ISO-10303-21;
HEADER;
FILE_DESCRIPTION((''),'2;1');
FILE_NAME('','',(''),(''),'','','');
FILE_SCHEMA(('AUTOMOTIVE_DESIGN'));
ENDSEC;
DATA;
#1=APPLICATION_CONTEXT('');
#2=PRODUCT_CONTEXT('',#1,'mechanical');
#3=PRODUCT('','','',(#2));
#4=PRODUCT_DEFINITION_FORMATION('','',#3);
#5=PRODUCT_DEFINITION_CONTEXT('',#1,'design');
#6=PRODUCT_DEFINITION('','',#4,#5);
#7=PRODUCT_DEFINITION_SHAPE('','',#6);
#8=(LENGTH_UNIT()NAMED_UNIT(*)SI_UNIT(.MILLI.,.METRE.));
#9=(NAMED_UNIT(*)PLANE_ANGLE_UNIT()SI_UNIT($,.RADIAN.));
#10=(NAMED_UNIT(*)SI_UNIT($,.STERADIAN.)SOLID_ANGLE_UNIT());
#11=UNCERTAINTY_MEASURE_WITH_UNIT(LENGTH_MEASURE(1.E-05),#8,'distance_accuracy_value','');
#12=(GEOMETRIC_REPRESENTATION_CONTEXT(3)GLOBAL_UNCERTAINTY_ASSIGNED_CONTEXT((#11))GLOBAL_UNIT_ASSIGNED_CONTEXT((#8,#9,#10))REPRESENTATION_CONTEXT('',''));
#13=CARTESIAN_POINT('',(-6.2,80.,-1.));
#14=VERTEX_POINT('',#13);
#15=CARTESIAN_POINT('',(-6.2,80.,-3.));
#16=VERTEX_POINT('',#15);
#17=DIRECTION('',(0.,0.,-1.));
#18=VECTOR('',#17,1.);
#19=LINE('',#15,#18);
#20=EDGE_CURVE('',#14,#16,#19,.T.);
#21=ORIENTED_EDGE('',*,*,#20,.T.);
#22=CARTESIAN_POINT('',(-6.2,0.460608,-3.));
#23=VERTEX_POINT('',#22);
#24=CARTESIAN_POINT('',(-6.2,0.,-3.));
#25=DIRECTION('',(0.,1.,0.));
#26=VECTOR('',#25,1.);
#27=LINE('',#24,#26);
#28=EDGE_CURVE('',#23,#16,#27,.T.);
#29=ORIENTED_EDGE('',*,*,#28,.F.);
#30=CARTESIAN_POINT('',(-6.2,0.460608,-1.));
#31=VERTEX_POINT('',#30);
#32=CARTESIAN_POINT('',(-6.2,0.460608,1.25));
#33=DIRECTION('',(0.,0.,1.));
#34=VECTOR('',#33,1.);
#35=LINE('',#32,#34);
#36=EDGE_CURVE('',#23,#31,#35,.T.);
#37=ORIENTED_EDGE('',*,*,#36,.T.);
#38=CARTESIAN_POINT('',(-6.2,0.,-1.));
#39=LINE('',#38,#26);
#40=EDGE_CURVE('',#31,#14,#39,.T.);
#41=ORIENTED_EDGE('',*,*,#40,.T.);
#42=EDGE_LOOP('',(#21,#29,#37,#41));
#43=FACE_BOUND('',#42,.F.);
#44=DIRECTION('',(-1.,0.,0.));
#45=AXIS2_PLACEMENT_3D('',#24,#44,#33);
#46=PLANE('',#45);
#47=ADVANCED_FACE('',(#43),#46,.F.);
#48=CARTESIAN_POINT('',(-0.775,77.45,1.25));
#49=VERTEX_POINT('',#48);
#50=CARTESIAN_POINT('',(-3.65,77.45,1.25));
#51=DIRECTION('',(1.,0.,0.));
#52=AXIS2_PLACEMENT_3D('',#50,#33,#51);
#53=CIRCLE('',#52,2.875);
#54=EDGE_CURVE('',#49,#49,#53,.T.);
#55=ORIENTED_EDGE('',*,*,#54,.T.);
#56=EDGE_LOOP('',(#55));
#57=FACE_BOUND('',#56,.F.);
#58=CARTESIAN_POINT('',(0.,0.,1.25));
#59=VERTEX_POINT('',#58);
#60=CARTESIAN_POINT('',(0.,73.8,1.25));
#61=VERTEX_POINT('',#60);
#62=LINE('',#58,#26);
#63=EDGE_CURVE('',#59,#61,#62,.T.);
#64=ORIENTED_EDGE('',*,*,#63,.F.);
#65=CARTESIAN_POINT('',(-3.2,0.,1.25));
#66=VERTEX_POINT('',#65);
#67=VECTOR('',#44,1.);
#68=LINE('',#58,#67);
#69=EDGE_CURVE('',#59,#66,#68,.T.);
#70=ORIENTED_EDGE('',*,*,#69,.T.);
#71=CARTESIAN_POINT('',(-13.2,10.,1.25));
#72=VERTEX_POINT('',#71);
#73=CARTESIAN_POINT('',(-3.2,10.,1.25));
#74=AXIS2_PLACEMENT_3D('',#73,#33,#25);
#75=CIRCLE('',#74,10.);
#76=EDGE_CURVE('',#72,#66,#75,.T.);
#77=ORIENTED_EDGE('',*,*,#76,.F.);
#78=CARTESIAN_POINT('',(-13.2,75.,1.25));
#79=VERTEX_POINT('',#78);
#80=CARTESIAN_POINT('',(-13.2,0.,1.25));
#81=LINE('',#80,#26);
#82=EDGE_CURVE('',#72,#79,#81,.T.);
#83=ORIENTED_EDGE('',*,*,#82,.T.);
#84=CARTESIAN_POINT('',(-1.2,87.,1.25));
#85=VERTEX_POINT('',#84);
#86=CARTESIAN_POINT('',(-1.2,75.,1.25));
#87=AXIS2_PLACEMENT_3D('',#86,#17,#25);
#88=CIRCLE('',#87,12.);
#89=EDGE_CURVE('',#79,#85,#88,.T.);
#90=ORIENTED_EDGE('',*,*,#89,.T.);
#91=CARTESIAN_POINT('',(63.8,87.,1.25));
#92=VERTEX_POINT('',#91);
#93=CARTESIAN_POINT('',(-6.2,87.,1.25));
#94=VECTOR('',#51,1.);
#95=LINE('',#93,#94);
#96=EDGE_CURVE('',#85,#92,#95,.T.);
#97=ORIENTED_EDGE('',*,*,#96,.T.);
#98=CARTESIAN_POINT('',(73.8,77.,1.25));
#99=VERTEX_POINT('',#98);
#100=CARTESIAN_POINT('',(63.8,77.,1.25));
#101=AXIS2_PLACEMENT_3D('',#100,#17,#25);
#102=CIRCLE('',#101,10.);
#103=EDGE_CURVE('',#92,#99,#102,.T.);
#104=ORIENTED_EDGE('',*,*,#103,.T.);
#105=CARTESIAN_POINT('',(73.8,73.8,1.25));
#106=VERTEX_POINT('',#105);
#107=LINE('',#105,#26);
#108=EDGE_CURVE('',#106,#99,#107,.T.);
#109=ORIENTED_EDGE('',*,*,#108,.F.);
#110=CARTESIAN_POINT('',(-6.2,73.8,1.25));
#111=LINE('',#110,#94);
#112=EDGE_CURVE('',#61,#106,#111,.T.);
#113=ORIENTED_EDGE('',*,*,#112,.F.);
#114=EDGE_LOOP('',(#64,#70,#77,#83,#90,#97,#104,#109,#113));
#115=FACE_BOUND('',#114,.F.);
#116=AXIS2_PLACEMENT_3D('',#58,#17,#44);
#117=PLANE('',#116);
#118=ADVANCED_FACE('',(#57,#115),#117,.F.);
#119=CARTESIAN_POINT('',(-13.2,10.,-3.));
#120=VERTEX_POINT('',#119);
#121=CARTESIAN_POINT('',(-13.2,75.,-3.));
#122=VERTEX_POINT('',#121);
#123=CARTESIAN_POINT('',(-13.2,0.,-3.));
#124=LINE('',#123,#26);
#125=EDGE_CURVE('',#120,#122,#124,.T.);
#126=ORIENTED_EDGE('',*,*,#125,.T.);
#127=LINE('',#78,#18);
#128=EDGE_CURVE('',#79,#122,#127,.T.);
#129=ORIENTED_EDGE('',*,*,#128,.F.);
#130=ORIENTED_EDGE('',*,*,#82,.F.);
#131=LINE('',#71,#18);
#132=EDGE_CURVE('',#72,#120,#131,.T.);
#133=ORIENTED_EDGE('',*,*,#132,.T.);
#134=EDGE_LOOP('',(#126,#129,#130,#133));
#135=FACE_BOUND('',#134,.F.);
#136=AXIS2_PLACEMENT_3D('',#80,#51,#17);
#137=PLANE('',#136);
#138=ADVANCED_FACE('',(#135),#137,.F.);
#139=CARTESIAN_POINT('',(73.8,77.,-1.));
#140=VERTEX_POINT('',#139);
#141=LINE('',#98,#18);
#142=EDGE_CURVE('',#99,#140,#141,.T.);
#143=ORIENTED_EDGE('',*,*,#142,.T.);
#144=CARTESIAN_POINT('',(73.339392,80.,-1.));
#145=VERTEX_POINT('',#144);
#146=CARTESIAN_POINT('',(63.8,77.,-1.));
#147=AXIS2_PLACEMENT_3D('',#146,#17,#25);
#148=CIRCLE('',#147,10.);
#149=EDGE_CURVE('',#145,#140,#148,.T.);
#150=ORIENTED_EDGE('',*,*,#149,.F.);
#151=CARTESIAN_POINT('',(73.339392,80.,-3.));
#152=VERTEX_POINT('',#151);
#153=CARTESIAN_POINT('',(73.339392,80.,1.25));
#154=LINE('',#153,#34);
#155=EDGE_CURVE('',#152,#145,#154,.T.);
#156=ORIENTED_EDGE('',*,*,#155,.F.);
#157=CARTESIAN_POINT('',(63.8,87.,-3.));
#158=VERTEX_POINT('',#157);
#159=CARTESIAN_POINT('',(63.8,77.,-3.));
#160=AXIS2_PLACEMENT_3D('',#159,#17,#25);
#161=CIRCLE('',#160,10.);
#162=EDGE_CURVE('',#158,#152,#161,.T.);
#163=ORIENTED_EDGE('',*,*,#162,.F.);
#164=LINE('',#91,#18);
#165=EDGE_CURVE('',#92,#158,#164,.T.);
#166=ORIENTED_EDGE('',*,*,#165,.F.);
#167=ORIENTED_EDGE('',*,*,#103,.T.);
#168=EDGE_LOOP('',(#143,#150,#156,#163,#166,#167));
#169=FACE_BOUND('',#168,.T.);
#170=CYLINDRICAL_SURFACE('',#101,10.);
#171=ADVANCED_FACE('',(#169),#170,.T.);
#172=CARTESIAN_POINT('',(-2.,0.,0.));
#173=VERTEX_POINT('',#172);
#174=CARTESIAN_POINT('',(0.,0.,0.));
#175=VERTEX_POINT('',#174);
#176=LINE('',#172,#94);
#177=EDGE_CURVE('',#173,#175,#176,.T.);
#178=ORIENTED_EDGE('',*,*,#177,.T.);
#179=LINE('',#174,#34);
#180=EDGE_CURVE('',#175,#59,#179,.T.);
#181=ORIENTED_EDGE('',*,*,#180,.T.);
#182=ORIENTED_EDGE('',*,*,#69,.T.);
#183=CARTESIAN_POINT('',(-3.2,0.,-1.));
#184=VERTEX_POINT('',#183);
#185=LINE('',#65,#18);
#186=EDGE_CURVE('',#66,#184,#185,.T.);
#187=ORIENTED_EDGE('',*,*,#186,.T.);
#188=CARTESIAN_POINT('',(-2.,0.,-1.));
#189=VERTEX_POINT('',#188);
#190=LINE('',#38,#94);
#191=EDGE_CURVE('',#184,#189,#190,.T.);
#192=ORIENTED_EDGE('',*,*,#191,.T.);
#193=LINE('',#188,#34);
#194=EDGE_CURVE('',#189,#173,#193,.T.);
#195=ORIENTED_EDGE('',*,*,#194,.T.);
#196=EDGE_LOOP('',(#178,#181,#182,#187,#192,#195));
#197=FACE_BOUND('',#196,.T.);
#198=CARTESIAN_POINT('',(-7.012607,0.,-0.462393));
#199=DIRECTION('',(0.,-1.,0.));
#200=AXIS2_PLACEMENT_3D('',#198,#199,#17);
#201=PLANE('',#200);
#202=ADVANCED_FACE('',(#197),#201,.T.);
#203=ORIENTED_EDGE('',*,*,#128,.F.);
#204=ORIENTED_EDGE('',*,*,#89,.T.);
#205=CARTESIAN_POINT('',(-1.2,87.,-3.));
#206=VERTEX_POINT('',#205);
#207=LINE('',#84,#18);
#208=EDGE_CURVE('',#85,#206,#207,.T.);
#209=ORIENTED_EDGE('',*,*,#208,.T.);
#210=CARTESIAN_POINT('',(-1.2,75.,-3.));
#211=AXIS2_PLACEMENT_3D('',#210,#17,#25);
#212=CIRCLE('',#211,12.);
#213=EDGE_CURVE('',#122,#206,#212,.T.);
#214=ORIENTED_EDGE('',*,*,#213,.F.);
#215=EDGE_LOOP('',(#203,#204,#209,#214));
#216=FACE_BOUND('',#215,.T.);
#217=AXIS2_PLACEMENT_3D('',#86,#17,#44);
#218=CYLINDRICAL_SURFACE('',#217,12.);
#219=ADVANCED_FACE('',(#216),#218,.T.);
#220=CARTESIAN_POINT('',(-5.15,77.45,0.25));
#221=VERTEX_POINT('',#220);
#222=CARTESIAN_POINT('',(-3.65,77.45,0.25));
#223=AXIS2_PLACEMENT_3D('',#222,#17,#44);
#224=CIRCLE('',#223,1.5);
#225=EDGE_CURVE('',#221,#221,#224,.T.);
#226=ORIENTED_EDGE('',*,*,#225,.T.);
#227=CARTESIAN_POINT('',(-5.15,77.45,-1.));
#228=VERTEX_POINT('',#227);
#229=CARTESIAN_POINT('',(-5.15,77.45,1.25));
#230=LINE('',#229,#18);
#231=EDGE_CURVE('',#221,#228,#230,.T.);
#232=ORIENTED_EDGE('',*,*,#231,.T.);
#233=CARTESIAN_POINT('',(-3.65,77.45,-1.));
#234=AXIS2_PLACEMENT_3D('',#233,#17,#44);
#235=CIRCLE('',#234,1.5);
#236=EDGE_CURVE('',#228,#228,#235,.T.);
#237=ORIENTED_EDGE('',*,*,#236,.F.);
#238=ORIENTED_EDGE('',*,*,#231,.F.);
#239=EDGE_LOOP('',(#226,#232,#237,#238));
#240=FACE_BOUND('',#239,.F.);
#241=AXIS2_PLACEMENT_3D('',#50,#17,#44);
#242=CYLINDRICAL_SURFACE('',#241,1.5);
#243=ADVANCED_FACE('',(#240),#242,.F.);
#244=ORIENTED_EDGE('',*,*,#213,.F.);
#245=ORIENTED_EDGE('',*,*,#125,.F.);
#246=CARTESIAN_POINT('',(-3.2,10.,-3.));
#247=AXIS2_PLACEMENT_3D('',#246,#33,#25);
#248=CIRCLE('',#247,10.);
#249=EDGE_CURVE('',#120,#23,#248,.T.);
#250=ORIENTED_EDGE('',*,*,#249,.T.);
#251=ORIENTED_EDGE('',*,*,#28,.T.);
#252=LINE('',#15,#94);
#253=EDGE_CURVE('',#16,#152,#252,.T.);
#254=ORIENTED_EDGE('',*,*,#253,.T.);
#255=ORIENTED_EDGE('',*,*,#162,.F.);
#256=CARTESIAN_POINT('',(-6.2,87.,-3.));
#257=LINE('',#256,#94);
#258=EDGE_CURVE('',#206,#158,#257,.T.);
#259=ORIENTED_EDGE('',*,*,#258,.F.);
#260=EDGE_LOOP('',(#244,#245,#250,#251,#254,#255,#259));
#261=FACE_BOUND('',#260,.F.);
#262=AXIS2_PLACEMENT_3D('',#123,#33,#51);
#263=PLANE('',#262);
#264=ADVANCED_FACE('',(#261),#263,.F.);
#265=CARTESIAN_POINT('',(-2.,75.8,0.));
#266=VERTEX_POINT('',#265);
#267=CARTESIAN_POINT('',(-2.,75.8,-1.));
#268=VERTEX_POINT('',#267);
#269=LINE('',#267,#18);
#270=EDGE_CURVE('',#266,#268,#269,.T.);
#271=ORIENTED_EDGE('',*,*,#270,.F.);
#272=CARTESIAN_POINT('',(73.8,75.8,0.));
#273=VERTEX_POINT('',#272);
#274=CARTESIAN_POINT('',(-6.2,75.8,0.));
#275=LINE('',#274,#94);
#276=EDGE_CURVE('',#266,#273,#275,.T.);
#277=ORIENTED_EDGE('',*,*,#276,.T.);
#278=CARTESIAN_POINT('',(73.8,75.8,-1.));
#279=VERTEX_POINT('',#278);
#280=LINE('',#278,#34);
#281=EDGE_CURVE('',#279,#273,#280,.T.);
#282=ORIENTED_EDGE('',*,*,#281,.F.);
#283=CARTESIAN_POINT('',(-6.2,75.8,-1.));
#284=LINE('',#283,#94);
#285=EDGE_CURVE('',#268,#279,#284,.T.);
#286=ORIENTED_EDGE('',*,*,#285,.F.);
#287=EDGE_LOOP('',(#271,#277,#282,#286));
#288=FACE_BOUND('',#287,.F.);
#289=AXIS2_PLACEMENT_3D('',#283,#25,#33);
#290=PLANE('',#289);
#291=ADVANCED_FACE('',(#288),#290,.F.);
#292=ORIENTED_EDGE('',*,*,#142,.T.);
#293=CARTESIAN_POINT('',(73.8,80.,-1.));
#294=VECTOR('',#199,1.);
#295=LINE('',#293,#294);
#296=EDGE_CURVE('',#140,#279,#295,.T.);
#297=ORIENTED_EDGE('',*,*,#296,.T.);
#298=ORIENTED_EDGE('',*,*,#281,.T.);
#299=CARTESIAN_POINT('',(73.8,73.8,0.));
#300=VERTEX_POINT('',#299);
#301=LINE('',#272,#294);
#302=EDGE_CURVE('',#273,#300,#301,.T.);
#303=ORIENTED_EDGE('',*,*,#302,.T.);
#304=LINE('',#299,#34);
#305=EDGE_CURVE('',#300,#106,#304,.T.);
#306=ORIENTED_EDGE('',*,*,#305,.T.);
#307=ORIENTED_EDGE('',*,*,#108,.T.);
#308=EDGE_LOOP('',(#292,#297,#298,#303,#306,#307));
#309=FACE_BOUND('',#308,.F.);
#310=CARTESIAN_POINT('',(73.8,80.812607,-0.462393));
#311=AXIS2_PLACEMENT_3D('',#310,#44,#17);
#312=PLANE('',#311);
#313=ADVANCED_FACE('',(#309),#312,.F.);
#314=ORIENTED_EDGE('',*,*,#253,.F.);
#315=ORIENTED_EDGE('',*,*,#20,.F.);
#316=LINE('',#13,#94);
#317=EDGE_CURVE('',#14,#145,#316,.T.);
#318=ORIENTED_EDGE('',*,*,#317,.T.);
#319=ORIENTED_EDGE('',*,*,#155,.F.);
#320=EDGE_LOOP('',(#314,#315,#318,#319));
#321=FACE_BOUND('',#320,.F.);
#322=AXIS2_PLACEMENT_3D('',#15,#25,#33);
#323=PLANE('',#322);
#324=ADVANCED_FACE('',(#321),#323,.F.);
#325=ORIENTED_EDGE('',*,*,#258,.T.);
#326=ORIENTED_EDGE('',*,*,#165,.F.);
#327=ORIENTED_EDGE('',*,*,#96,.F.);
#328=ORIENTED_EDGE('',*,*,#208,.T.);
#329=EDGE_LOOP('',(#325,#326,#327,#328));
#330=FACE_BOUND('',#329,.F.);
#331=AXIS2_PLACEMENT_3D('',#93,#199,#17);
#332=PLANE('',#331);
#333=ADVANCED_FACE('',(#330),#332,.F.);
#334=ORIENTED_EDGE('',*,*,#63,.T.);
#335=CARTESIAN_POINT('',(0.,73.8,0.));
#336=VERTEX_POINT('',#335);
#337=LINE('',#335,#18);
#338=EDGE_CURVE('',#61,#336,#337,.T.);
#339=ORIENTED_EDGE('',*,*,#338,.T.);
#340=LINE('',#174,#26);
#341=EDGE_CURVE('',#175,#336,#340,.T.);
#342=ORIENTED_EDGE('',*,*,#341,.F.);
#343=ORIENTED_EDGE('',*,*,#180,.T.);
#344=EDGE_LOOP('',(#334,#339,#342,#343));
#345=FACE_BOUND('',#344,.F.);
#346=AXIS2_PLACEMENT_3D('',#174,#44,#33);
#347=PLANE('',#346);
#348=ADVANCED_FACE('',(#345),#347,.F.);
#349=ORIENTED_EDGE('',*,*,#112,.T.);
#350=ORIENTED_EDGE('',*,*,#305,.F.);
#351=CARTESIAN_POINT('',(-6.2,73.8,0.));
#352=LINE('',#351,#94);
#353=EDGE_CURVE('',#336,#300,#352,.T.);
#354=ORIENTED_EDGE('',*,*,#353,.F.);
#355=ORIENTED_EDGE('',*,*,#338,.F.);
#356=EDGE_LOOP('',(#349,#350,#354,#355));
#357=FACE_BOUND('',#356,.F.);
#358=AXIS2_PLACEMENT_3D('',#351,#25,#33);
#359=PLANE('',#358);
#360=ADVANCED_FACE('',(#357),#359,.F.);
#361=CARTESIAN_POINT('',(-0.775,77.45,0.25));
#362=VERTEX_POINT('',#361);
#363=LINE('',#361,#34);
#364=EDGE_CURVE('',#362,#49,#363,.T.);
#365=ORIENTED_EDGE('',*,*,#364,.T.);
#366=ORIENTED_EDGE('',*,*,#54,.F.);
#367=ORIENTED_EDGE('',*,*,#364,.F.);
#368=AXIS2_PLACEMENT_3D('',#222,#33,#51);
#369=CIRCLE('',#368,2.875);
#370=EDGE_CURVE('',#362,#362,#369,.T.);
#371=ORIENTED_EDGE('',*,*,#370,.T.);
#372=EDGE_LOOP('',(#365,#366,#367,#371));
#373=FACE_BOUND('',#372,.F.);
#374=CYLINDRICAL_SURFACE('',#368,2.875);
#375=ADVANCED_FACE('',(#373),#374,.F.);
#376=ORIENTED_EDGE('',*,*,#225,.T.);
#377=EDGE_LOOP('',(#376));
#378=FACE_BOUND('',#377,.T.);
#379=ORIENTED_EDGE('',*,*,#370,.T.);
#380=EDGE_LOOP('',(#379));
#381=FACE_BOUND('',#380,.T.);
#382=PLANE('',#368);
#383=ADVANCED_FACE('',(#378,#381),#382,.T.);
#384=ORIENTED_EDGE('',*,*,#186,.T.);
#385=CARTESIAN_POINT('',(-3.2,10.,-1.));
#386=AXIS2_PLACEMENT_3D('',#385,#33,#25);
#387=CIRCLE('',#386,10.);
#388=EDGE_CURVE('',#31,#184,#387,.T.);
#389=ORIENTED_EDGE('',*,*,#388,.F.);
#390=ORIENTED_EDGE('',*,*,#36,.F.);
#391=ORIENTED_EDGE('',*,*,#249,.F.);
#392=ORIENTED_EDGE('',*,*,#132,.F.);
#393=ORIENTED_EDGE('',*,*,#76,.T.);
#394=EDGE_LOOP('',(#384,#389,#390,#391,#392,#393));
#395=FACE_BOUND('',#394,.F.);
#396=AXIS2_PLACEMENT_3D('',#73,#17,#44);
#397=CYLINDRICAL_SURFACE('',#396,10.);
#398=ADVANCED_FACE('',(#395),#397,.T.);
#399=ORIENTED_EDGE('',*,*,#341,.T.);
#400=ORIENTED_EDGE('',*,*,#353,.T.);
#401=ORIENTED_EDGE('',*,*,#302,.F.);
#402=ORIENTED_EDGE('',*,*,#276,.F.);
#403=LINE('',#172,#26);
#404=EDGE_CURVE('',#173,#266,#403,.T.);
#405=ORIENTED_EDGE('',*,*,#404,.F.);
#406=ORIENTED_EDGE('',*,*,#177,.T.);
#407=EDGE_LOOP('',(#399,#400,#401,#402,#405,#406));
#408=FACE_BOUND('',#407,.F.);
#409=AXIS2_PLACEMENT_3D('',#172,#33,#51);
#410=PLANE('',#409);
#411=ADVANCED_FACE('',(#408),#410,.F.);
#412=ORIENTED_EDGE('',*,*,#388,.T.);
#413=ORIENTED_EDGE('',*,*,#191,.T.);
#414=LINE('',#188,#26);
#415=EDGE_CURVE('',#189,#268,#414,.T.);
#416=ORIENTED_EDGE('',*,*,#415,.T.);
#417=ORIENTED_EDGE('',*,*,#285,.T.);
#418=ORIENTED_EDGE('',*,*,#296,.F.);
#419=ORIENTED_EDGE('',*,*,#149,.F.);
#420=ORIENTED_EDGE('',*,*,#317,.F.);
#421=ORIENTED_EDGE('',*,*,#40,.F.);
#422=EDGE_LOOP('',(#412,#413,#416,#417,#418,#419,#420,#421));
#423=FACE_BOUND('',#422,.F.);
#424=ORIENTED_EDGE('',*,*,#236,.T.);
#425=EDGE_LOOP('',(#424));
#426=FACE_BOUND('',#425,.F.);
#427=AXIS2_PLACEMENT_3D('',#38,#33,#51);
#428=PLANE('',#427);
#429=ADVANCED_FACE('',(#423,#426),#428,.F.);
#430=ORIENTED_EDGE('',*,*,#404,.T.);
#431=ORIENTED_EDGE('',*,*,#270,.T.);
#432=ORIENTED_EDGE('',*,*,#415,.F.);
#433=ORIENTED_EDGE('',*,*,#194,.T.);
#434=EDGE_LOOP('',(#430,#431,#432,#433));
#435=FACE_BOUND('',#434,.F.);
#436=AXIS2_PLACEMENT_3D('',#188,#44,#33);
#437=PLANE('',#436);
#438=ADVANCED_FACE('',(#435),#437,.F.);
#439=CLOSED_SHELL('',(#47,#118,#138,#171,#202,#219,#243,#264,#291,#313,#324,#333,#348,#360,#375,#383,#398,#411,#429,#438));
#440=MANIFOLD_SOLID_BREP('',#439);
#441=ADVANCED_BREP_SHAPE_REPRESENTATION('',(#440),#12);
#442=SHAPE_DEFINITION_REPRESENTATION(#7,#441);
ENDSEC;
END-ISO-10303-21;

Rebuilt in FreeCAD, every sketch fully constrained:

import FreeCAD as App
import Part
import Sketcher

V = App.Vector


def edges_at(feature, points):
    """Names of the edges that pass closest to the given points."""
    edges = feature.Shape.Edges
    near = lambda p: min(range(len(edges)), key=lambda i: edges[i].distToShape(Part.Vertex(*p))[0])
    return sorted({f"Edge{near(p) + 1}" for p in points})

doc = App.newDocument("Part")
body = doc.addObject("PartDesign::Body", "Body")

sketch1 = body.newObject("Sketcher::SketchObject", "Sketch")
sketch1.AttachmentSupport = (doc.getObject("XZ_Plane"), [""])
sketch1.MapMode = "FlatFace"
sketch1.addGeometry([
    Part.LineSegment(V(-6.2, -3, 0), V(-6.2, -1, 0)),
    Part.LineSegment(V(-6.2, -1, 0), V(-2, -1, 0)),
    Part.LineSegment(V(-2, -1, 0), V(-2, 0, 0)),
    Part.LineSegment(V(-2, 0, 0), V(0, 0, 0)),
    Part.LineSegment(V(0, 0, 0), V(0, 1.2, 0)),
    Part.LineSegment(V(0, 1.2, 0), V(-13.2, 1.2, 0)),
    Part.LineSegment(V(-13.2, 1.2, 0), V(-13.2, -3, 0)),
    Part.LineSegment(V(-13.2, -3, 0), V(-6.2, -3, 0)),
], False)
sketch1.addConstraint([
    Sketcher.Constraint("Coincident", 0, 2, 1, 1),
    Sketcher.Constraint("Coincident", 1, 2, 2, 1),
    Sketcher.Constraint("Coincident", 2, 2, 3, 1),
    Sketcher.Constraint("Coincident", 3, 2, 4, 1),
    Sketcher.Constraint("Coincident", 4, 2, 5, 1),
    Sketcher.Constraint("Coincident", 5, 2, 6, 1),
    Sketcher.Constraint("Coincident", 6, 2, 7, 1),
    Sketcher.Constraint("Coincident", 7, 2, 0, 1),
    Sketcher.Constraint("Vertical", 0),
    Sketcher.Constraint("Horizontal", 1),
    Sketcher.Constraint("Vertical", 2),
    Sketcher.Constraint("Horizontal", 3),
    Sketcher.Constraint("Vertical", 4),
    Sketcher.Constraint("Horizontal", 5),
    Sketcher.Constraint("Vertical", 6),
    Sketcher.Constraint("Horizontal", 7),
    Sketcher.Constraint("Coincident", 3, 2, -1, 1),
    Sketcher.Constraint("Equal", 3, 0),
    Sketcher.Constraint("DistanceX", 3, 1, 3, 2, 2.0),
    Sketcher.Constraint("DistanceX", 7, 1, 7, 2, 7.0),
    Sketcher.Constraint("DistanceY", 2, 1, 2, 2, 1.0),
    Sketcher.Constraint("DistanceX", 1, 1, 1, 2, 4.2),
    Sketcher.Constraint("DistanceY", 4, 1, 4, 2, 1.25),
])

sketch2 = body.newObject("Sketcher::SketchObject", "Sketch001")
sketch2.AttachmentSupport = (doc.getObject("XY_Plane"), [""])
sketch2.MapMode = "FlatFace"
sketch2.addGeometry([
    Part.LineSegment(V(-6, 0, 0), V(-6, 80, 0)),
    Part.LineSegment(V(-6, 80, 0), V(74, 80, 0)),
], False)
sketch2.addConstraint([
    Sketcher.Constraint("Coincident", 0, 2, 1, 1),
    Sketcher.Constraint("Vertical", 0),
    Sketcher.Constraint("Horizontal", 1),
    Sketcher.Constraint("PointOnObject", 0, 1, -1),
    Sketcher.Constraint("Equal", 1, 0),
    Sketcher.Constraint("DistanceX", 1, 1, 1, 2, 80.0),
    Sketcher.Constraint("DistanceX", 0, 1, -1, 1, 6.2),
])
doc.recompute()

additivepipe = body.newObject("PartDesign::AdditivePipe", "AdditivePipe")
additivepipe.Profile = sketch1
additivepipe.Spine = (sketch2, ["Edge1", "Edge2"])
additivepipe.Transition = "Right corner"
doc.recompute()

fillet = body.newObject("PartDesign::Fillet", "Fillet")
fillet.Base = (additivepipe, edges_at(additivepipe, [(-13.2, 0, -0.875), (73.8, 87, -0.875)]))
fillet.Radius = 10
doc.recompute()

fillet2 = body.newObject("PartDesign::Fillet", "Fillet001")
fillet2.Base = (fillet, edges_at(fillet, [(-13.2, 87, -0.875)]))
fillet2.Radius = 12

sketch3 = body.newObject("Sketcher::SketchObject", "Sketch002")
sketch3.AttachmentSupport = (doc.getObject("XY_Plane"), [""])
sketch3.MapMode = "FlatFace"
sketch3.AttachmentOffset = App.Placement(V(0, 0, 1.25), App.Rotation())
sketch3.addGeometry(Part.Circle(V(-3.6, 77.5, 0), V(0, 0, 1), 1.5), False)
sketch3.addConstraint([
    Sketcher.Constraint("Diameter", 0, 3.0),
    Sketcher.Constraint("DistanceX", 0, 3, -1, 1, 3.65),
    Sketcher.Constraint("DistanceY", -1, 1, 0, 3, 77.45),
])
doc.recompute()
hole = body.newObject("PartDesign::Hole", "Hole")
hole.Profile = sketch3
hole.ThreadType = "None"
hole.Diameter = 3
hole.DepthType = "ThroughAll"
hole.HoleCutType = "Counterbore"
hole.HoleCutDiameter = 5.75
hole.HoleCutDepth = 1

doc.recompute()
